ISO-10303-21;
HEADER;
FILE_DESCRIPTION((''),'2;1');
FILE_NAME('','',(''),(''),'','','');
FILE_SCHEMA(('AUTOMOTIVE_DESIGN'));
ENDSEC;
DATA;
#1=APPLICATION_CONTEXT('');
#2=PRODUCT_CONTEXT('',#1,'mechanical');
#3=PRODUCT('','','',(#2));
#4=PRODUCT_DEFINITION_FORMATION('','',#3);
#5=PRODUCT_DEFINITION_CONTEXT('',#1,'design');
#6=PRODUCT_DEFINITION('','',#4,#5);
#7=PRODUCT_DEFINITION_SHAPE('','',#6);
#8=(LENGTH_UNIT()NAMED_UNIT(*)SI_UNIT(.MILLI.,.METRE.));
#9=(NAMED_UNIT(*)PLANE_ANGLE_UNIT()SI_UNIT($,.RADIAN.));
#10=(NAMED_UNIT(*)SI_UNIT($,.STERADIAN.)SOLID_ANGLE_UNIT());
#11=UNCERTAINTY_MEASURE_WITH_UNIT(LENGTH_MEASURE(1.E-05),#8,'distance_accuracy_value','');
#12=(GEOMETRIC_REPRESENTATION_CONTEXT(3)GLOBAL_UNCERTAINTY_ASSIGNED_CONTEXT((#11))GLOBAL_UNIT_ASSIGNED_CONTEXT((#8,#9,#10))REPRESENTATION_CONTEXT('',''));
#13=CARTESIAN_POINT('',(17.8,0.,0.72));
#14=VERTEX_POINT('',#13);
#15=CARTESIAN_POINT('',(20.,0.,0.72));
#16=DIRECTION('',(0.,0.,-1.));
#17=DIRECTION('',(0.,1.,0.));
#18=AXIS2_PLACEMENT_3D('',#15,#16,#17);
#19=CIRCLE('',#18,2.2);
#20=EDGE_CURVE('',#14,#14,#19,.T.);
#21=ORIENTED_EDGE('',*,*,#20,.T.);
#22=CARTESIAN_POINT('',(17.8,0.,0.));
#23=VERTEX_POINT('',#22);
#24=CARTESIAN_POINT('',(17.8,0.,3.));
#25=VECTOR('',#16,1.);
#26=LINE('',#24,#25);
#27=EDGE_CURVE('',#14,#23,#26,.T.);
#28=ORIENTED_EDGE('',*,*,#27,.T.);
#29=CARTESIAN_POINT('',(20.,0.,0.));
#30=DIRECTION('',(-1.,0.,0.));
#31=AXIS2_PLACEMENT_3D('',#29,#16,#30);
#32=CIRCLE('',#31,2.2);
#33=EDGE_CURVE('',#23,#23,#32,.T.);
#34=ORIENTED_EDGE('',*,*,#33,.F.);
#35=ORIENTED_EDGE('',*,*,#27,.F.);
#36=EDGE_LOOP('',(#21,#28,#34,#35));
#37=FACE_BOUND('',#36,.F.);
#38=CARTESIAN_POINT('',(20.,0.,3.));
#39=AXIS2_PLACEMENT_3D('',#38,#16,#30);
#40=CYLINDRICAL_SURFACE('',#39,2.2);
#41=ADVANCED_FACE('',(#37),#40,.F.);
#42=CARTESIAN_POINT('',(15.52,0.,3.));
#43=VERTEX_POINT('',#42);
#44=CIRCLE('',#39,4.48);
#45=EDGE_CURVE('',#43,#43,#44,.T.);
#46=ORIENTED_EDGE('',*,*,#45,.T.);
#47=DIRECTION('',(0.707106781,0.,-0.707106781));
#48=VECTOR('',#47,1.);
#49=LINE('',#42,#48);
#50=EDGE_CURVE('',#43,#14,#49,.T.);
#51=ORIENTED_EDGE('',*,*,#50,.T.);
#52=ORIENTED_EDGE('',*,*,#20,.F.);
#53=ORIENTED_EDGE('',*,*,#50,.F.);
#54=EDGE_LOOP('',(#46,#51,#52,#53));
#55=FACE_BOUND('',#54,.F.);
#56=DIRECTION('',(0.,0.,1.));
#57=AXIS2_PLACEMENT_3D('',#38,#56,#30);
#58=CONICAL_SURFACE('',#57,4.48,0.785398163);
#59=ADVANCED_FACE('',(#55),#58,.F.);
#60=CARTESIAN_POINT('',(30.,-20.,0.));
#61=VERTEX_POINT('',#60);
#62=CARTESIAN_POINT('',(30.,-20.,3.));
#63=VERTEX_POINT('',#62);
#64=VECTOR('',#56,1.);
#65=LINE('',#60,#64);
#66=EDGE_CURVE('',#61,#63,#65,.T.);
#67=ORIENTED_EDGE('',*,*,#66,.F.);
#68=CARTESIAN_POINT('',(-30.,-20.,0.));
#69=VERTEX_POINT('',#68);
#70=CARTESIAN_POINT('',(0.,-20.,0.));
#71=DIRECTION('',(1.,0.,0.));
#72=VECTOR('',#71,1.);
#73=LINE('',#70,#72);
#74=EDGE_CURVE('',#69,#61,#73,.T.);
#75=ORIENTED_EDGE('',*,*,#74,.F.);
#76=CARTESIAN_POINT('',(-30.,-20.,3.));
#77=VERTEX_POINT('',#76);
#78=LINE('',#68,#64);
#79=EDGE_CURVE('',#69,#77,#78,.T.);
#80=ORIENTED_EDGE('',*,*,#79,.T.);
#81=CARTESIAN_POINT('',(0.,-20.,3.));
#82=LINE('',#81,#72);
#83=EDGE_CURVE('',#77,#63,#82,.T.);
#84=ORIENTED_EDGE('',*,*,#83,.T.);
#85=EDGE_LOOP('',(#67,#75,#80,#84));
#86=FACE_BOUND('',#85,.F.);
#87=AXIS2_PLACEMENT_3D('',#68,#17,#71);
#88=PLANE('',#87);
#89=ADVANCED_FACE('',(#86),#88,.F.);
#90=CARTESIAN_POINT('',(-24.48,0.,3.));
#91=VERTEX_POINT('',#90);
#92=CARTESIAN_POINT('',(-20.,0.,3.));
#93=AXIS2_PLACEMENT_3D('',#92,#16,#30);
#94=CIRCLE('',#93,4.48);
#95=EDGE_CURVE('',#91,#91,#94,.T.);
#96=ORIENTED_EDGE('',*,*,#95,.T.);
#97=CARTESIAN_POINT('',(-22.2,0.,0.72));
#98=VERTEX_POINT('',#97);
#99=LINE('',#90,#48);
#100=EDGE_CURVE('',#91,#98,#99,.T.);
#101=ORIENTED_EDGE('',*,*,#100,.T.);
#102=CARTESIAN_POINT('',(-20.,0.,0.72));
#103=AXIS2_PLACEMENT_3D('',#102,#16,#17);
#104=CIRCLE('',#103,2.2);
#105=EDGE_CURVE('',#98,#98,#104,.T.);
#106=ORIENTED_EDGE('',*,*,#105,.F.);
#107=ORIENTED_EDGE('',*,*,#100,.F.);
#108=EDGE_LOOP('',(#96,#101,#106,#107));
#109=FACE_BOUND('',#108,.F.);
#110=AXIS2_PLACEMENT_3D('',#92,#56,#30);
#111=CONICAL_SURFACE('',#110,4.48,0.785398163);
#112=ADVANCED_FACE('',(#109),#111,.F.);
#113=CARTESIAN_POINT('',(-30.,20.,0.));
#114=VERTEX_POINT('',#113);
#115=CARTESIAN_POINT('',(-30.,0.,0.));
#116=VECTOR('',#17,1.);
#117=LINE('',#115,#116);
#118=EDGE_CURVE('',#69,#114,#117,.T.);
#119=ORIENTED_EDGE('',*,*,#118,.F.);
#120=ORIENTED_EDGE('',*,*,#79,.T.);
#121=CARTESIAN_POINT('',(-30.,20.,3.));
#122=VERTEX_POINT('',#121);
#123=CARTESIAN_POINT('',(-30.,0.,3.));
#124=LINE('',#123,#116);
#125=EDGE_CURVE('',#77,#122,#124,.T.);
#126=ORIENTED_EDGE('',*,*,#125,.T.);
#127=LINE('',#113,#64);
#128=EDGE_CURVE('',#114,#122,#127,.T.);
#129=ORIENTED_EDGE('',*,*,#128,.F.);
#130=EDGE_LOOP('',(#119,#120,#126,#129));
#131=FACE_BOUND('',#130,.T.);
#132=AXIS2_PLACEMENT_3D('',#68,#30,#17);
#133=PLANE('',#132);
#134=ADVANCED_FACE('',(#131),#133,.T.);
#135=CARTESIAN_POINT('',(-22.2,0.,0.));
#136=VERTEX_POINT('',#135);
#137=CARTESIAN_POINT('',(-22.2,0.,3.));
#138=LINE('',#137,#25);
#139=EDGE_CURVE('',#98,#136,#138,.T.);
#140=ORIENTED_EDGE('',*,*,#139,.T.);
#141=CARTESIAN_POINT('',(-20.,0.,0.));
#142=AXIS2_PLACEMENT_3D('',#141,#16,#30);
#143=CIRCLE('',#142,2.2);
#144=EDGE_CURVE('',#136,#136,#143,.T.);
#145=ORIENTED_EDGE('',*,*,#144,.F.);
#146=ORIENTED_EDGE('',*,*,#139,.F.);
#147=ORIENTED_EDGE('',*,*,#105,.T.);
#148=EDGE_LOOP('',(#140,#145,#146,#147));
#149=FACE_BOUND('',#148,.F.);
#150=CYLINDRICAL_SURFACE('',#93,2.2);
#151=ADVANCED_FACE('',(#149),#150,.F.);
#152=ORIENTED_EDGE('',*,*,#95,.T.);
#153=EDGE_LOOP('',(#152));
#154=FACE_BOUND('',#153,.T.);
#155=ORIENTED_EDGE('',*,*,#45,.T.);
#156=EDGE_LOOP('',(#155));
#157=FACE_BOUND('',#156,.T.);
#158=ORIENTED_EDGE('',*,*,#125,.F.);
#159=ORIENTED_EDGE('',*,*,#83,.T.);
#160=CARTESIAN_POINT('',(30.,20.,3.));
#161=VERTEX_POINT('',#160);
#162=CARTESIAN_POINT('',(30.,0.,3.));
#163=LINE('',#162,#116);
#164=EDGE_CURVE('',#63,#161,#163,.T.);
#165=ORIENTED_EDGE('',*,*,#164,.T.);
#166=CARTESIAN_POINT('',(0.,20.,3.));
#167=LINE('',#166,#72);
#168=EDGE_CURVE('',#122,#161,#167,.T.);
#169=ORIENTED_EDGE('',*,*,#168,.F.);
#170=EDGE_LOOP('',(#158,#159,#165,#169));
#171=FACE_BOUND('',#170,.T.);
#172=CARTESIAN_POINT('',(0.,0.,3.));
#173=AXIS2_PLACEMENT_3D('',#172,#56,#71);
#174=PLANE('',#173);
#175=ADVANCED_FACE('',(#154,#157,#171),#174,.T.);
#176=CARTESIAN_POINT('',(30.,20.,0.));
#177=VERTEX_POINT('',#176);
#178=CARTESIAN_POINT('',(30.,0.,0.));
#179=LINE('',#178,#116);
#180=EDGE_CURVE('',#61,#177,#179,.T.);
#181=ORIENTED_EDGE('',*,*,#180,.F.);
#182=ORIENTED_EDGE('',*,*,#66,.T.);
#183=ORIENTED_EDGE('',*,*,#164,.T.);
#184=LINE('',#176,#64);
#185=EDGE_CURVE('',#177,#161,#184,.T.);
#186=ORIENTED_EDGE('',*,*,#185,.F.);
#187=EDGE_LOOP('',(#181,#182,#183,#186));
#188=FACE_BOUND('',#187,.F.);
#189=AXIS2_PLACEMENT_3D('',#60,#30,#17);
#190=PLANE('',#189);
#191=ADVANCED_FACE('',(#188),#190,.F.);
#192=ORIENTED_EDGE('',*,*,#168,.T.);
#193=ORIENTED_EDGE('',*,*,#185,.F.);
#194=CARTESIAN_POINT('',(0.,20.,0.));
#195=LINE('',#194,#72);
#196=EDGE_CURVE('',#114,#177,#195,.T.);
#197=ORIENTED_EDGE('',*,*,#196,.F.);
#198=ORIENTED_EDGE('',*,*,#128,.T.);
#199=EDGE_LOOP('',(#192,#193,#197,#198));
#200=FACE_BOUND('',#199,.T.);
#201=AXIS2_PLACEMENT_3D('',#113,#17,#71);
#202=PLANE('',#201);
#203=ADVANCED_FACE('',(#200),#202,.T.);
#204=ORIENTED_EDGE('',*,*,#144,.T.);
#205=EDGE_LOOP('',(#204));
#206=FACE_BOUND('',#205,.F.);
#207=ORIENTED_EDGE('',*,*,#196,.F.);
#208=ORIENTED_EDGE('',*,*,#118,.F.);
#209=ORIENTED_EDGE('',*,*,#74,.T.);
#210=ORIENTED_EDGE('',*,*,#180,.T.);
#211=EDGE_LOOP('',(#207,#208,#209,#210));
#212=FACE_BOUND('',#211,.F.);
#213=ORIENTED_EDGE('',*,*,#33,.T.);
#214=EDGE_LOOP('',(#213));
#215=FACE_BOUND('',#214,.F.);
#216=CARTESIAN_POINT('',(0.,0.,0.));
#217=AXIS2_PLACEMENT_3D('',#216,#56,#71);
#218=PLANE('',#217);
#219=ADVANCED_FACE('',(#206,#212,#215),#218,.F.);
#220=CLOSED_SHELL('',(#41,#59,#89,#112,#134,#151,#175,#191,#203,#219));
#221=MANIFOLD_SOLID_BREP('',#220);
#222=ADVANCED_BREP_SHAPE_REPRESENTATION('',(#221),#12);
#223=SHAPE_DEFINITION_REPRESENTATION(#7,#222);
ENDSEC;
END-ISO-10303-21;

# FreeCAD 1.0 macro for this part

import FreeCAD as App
import Part
import Sketcher
from FreeCAD import Vector
Q = App.Units.Quantity


def add_polygon(sketch, points):
    """Adds a closed chain of lines whose ends are joined by coincident constraints."""
    first, n = sketch.GeometryCount, len(points)
    for a, b in zip(points, points[1:] + points[:1]):
        sketch.addGeometry(Part.LineSegment(App.Vector(*a, 0), App.Vector(*b, 0)), False)
    for i in range(n):
        sketch.addConstraint(Sketcher.Constraint("Coincident", first + i, 2, first + (i + 1) % n, 1))

doc = App.newDocument("Part")
body = doc.addObject("PartDesign::Body", "Body")

sketch1 = body.newObject("Sketcher::SketchObject", "Sketch")
sketch1.AttachmentSupport = (doc.getObject("XY_Plane"), [""])
sketch1.MapMode = "FlatFace"
add_polygon(sketch1, [(-30, 20), (-30, -20), (30, -20), (30, 20)])
sketch1.addConstraint(Sketcher.Constraint("Vertical", 0))
sketch1.addConstraint(Sketcher.Constraint("Horizontal", 1))
sketch1.addConstraint(Sketcher.Constraint("Vertical", 2))
sketch1.addConstraint(Sketcher.Constraint("Horizontal", 3))
sketch1.addConstraint(Sketcher.Constraint("Symmetric", 0, 2, 2, 2, -1, 1))
sketch1.addConstraint(Sketcher.Constraint("DistanceX", 1, 1, 1, 2, Q("60 mm")))
sketch1.addConstraint(Sketcher.Constraint("DistanceY", 0, 2, 0, 1, Q("40 mm")))
pad1 = body.newObject("PartDesign::Pad", "Pad")
pad1.Profile = sketch1
pad1.Length = 3

sketch2 = body.newObject("Sketcher::SketchObject", "Sketch001")
sketch2.AttachmentSupport = (doc.getObject("XY_Plane"), [""])
sketch2.MapMode = "FlatFace"
sketch2.AttachmentOffset = App.Placement(Vector(0, 0, 3), App.Rotation())
sketch2.addGeometry(Part.Circle(Vector(-20, 0, 0), Vector(0, 0, 1), 2.2), False)
sketch2.addGeometry(Part.Circle(Vector(20, 0, 0), Vector(0, 0, 1), 2.2), False)
sketch2.addConstraint(Sketcher.Constraint("Equal", 0, 1))
sketch2.addConstraint(Sketcher.Constraint("Symmetric", 0, 3, 1, 3, -1, 1))
sketch2.addConstraint(Sketcher.Constraint("PointOnObject", 0, 3, -1))
sketch2.addConstraint(Sketcher.Constraint("Diameter", 0, Q("4.4 mm")))
sketch2.addConstraint(Sketcher.Constraint("DistanceX", 0, 3, -1, 1, Q("20 mm")))
doc.recompute()
hole = body.newObject("PartDesign::Hole", "Hole")
hole.Profile = sketch2
hole.ThreadType = "None"
hole.Diameter = 4.4
hole.DepthType = "ThroughAll"
hole.HoleCutType = "Countersink"
hole.HoleCutDiameter = 8.96
hole.HoleCutCountersinkAngle = 90

doc.recompute()
